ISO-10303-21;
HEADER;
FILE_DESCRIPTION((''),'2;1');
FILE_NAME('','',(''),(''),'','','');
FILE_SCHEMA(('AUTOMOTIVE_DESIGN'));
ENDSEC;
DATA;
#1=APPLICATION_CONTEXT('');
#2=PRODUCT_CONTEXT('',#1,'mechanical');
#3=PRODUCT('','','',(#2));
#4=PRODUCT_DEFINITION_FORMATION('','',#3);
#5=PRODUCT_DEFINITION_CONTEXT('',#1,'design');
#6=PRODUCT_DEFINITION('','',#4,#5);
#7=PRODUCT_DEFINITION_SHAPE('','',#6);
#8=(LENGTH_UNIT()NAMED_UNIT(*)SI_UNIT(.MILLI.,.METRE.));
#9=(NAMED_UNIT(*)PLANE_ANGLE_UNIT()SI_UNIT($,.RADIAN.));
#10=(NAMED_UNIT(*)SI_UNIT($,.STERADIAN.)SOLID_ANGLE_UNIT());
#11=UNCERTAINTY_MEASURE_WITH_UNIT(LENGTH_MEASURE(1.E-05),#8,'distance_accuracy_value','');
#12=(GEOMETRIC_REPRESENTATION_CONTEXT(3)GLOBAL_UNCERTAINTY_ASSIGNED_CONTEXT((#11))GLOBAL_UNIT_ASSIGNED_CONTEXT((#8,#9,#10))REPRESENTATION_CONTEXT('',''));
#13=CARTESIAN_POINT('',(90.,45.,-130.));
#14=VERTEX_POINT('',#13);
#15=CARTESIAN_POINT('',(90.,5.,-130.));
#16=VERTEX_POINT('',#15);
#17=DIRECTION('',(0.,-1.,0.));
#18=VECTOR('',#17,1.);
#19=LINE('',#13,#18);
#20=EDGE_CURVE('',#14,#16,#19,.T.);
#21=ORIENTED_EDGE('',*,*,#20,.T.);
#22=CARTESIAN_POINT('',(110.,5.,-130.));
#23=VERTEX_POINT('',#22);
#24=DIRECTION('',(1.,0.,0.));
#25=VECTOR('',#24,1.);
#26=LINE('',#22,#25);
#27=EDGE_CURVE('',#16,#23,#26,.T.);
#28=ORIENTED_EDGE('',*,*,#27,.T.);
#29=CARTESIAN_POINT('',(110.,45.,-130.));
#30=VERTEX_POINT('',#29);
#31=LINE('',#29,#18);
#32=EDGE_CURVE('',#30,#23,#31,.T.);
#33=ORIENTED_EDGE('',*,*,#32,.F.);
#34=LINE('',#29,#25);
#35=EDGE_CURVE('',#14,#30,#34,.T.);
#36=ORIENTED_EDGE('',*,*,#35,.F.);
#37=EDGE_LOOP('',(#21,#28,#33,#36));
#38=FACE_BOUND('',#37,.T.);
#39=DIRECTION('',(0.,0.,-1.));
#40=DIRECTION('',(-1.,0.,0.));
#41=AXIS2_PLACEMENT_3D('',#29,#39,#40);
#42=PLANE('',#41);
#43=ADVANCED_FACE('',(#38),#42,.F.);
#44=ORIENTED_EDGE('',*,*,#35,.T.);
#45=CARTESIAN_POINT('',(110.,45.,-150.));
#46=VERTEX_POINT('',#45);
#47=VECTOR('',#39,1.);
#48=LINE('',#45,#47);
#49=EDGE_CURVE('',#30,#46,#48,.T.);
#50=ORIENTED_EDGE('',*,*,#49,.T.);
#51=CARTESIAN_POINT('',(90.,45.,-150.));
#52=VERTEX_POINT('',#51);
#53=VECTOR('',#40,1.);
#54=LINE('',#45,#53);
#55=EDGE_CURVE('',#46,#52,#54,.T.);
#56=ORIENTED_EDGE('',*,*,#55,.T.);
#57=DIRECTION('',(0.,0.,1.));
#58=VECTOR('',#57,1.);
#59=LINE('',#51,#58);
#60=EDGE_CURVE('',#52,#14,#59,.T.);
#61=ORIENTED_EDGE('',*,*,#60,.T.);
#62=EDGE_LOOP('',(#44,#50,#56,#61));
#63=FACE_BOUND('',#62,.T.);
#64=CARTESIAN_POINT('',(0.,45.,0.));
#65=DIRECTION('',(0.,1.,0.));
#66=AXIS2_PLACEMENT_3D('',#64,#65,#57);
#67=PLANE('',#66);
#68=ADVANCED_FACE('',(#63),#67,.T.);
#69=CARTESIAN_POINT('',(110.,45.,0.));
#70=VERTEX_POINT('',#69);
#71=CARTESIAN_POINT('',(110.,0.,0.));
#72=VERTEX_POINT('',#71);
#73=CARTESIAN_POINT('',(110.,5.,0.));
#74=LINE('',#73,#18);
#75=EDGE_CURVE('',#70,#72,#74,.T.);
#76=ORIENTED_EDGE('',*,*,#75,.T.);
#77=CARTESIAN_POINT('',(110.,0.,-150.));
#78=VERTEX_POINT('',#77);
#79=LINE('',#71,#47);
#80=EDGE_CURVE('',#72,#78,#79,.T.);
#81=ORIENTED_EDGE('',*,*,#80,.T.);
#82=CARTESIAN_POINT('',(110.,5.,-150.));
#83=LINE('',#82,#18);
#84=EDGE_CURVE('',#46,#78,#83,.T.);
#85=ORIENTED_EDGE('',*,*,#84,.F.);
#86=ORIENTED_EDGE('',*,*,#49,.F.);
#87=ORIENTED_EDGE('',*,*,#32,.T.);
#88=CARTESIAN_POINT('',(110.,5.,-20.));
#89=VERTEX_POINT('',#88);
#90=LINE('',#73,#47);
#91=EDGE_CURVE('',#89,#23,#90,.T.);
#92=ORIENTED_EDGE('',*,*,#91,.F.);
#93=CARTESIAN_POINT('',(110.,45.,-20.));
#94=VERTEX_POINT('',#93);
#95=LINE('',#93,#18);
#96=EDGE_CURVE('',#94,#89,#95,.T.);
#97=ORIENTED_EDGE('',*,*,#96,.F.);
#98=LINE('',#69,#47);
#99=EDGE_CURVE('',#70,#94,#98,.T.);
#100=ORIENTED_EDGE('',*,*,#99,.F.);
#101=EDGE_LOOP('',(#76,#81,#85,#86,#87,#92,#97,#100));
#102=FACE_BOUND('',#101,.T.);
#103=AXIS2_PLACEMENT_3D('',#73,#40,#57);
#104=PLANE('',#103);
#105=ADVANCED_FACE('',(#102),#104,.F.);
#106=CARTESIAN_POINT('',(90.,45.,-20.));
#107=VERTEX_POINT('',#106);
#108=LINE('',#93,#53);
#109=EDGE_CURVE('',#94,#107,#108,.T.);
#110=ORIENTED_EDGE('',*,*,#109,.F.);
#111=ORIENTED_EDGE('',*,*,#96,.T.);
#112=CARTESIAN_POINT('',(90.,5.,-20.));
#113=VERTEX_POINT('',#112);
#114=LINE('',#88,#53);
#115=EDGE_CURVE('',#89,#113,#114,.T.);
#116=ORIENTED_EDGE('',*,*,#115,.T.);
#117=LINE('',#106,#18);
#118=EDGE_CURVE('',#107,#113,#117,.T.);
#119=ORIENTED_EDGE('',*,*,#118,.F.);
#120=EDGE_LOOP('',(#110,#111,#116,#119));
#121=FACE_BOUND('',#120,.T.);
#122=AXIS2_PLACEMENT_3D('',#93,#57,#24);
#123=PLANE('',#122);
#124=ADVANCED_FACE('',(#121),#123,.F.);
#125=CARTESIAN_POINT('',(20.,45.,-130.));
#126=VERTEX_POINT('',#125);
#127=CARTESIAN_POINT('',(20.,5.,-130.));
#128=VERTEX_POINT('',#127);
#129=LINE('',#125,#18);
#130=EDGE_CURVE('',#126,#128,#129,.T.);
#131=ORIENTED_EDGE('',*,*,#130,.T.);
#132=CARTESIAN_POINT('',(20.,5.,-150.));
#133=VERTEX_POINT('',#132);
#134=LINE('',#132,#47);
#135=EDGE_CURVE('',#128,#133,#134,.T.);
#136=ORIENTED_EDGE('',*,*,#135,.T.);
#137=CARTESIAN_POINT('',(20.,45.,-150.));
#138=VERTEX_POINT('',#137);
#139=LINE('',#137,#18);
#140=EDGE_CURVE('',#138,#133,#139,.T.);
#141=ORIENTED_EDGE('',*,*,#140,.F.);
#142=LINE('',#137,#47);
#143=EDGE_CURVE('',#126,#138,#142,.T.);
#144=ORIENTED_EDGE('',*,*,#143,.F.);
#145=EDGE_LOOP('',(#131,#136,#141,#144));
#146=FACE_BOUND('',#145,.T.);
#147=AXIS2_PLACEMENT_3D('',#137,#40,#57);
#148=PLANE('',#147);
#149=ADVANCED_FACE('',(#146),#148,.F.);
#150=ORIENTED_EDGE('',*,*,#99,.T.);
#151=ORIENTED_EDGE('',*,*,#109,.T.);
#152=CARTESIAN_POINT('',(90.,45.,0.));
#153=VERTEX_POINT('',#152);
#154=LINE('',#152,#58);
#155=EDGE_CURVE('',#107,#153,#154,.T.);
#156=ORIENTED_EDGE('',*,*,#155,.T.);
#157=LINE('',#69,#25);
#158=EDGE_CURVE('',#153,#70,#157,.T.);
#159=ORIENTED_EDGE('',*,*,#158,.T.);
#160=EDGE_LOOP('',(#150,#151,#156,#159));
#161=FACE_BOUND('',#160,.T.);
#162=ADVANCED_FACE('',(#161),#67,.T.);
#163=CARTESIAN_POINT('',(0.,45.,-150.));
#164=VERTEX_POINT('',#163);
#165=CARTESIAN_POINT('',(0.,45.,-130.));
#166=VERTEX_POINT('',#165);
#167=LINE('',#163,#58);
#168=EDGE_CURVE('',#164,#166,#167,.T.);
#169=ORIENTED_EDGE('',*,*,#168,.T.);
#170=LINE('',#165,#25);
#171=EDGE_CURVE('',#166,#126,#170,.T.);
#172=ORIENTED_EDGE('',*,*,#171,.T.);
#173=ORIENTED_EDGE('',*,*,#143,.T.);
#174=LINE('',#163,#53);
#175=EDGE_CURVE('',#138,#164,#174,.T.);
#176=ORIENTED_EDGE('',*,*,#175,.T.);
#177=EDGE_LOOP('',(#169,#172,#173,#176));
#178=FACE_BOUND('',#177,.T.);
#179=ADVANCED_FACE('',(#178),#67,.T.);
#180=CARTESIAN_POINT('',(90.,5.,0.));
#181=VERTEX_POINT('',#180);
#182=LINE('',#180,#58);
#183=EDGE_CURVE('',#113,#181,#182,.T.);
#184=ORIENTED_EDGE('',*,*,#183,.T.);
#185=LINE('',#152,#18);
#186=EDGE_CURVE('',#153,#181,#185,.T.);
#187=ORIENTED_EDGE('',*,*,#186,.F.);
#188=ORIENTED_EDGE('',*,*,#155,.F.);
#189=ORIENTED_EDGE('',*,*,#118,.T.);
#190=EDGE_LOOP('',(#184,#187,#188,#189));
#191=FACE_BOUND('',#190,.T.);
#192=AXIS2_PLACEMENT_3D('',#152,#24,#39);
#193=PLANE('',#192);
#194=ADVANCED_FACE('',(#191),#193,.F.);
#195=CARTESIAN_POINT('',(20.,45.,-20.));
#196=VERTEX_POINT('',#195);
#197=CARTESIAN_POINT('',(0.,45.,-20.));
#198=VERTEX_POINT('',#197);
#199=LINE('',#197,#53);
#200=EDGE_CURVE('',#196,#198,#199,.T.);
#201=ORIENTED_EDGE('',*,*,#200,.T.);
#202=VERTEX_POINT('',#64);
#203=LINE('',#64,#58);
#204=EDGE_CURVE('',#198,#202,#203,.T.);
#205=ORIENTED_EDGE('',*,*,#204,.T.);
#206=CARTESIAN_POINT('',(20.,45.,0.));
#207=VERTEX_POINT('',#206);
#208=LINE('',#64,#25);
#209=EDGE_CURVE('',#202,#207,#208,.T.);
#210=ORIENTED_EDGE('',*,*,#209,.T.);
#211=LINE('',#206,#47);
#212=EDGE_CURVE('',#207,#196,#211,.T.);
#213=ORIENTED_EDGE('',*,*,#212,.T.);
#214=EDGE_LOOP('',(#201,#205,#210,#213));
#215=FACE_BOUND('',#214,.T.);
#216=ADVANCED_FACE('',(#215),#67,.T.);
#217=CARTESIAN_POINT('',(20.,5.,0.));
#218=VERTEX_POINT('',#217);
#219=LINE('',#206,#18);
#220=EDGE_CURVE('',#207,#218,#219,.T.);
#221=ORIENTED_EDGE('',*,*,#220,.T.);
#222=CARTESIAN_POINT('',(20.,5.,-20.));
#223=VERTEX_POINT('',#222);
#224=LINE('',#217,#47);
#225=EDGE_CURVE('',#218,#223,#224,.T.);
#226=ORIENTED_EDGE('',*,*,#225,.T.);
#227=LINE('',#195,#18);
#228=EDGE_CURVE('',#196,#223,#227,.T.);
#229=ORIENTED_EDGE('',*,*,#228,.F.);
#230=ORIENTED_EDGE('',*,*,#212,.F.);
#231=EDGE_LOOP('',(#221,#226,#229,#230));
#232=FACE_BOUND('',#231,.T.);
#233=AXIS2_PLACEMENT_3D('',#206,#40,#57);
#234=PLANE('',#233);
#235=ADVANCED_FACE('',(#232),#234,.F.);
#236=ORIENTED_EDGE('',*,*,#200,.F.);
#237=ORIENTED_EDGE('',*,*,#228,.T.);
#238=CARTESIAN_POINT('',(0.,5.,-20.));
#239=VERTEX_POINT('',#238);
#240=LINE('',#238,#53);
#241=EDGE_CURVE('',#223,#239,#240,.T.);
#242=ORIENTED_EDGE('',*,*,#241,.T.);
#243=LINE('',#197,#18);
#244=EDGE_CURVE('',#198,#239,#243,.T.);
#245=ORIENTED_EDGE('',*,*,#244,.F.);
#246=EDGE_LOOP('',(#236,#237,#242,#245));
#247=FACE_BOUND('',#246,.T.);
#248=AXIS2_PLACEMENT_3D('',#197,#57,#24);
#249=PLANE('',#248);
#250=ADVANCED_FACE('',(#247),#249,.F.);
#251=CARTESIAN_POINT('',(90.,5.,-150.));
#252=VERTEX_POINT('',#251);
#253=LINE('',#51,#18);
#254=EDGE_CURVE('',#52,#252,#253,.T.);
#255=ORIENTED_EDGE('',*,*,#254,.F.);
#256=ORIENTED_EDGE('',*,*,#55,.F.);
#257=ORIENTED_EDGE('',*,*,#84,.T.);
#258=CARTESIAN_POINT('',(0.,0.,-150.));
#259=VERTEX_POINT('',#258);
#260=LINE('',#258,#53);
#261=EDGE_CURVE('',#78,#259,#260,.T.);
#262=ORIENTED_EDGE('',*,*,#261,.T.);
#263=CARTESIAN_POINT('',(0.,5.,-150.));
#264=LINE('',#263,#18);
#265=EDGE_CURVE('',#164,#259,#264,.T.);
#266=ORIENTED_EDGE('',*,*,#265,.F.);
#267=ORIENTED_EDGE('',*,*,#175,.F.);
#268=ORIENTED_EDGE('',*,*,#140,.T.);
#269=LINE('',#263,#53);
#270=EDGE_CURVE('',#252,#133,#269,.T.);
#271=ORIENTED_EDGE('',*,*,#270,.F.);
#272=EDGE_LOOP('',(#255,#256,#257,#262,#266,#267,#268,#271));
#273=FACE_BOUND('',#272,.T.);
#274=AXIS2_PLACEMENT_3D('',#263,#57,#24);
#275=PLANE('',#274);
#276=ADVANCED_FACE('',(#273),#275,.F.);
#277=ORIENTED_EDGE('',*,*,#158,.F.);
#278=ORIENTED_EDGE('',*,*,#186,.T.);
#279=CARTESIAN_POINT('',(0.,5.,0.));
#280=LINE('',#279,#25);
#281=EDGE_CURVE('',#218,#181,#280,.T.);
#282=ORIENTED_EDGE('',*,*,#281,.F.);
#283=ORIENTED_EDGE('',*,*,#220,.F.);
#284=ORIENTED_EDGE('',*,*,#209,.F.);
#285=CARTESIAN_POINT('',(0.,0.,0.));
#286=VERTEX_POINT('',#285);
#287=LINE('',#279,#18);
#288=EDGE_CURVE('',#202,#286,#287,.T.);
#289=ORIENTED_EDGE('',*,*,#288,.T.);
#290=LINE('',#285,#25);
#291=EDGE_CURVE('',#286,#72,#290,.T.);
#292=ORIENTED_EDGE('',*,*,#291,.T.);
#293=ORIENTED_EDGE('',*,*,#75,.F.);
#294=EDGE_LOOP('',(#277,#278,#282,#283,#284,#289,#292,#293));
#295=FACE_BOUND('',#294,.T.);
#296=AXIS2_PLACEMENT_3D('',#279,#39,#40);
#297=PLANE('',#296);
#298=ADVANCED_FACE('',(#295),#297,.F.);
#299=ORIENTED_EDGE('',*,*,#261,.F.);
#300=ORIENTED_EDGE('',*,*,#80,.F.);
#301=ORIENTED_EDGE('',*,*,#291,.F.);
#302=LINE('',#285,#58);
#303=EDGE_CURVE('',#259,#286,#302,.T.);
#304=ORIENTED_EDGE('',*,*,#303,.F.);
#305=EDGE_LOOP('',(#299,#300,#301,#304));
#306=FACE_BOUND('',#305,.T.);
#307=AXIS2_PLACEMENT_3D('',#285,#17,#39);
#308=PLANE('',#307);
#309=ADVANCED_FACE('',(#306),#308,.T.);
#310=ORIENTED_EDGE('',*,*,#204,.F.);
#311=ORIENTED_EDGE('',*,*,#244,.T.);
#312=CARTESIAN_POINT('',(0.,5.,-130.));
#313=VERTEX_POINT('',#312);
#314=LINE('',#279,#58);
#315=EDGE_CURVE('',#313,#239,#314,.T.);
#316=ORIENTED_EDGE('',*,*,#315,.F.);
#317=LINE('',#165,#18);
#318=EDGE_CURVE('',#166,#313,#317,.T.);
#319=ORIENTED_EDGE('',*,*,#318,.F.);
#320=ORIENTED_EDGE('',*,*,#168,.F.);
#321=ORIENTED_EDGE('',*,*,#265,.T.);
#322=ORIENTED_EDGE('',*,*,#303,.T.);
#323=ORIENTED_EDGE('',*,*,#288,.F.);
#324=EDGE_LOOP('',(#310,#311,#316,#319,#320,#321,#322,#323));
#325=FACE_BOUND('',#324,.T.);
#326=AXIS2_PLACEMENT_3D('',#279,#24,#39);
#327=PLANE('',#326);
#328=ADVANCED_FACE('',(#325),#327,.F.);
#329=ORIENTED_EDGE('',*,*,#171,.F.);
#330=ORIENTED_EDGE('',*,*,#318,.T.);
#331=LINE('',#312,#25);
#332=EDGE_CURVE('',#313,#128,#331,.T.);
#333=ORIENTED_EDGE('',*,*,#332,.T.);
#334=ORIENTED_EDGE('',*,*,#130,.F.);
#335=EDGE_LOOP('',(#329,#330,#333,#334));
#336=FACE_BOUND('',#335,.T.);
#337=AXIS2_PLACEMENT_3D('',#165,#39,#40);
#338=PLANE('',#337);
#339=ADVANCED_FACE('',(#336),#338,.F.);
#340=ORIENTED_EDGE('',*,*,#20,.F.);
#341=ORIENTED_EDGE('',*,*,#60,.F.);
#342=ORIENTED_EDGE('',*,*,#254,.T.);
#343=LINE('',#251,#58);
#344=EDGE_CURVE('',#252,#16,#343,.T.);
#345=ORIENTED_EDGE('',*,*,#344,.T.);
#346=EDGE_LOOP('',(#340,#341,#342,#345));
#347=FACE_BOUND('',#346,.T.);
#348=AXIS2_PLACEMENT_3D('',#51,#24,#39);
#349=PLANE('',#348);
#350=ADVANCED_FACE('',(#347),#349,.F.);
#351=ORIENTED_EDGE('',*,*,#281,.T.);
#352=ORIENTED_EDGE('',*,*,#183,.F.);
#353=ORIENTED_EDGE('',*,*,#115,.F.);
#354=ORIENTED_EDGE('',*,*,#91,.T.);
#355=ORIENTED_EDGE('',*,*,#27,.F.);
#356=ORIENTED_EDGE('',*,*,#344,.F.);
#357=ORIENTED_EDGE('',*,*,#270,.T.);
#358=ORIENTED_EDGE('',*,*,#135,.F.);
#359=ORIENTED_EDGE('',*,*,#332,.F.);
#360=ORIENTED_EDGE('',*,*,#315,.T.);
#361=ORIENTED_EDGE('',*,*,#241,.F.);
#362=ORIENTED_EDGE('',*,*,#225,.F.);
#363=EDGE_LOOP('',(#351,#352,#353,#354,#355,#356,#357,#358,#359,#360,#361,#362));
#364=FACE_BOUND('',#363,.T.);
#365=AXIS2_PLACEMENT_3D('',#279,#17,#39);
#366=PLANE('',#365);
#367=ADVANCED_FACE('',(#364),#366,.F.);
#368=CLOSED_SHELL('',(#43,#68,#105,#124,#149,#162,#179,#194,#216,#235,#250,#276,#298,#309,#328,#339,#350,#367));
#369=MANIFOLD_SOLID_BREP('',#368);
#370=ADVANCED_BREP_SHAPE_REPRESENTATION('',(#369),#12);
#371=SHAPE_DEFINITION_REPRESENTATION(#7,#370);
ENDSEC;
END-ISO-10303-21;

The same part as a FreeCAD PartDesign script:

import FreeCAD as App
import Part
import Sketcher
Q = App.Units.Quantity


def add_polygon(sketch, points):
    """Adds a closed chain of lines whose ends are joined by coincident constraints."""
    first, n = sketch.GeometryCount, len(points)
    for a, b in zip(points, points[1:] + points[:1]):
        sketch.addGeometry(Part.LineSegment(App.Vector(*a, 0), App.Vector(*b, 0)), False)
    for i in range(n):
        sketch.addConstraint(Sketcher.Constraint("Coincident", first + i, 2, first + (i + 1) % n, 1))

doc = App.newDocument("Part")
params = doc.addObject("Spreadsheet::Sheet", "Params")
for row, (alias, value) in enumerate([
    ("sketch1_width", "110 mm"),
    ("sketch1_height", "150 mm"),
    ("pad1_length", "5 mm"),
    ("sketch2_width", "20 mm"),
    ("pad2_length", "40 mm"),
], start=1):
    params.set(f"A{row}", alias)
    params.set(f"B{row}", "=" + value)
    params.setAlias(f"B{row}", alias)

body = doc.addObject("PartDesign::Body", "Body")

sketch1 = doc.addObject("Sketcher::SketchObject", "Sketch")
body.addObject(sketch1)
sketch1.AttachmentSupport = (doc.XZ_Plane, [""])
sketch1.MapMode = "FlatFace"
add_polygon(sketch1, [(0, -150), (0, 0), (110, 0), (110, -150)])
sketch1.addConstraint([
    Sketcher.Constraint("Vertical", 0),
    Sketcher.Constraint("Horizontal", 1),
    Sketcher.Constraint("Vertical", 2),
    Sketcher.Constraint("Horizontal", 3),
    Sketcher.Constraint("Coincident", 0, 2, -1, 1),
    Sketcher.Constraint("DistanceX", 1, 1, 1, 2, Q("110 mm")),
    Sketcher.Constraint("DistanceY", 0, 1, 0, 2, Q("150 mm")),
])
sketch1.setExpression("Constraints[9]", "Params.sketch1_width")
sketch1.setExpression("Constraints[10]", "Params.sketch1_height")
pad1 = doc.addObject("PartDesign::Pad", "Pad")
body.addObject(pad1)
pad1.Profile = sketch1
pad1.setExpression("Length", "Params.pad1_length")
pad1.Reversed = True

sketch2 = doc.addObject("Sketcher::SketchObject", "Sketch001")
body.addObject(sketch2)
sketch2.AttachmentSupport = (doc.XZ_Plane, [""])
sketch2.MapMode = "FlatFace"
sketch2.AttachmentOffset = App.Placement(App.Vector(0, 0, -5), App.Rotation())
add_polygon(sketch2, [(0, -150), (0, -130), (20, -130), (20, -150)])
add_polygon(sketch2, [(0, -20), (0, 0), (20, 0), (20, -20)])
add_polygon(sketch2, [(90, -20), (90, 0), (110, 0), (110, -20)])
add_polygon(sketch2, [(90, -150), (90, -130), (110, -130), (110, -150)])
sketch2.addConstraint([
    Sketcher.Constraint("Vertical", 0),
    Sketcher.Constraint("Horizontal", 1),
    Sketcher.Constraint("Vertical", 2),
    Sketcher.Constraint("Horizontal", 3),
    Sketcher.Constraint("Vertical", 4),
    Sketcher.Constraint("Horizontal", 5),
    Sketcher.Constraint("Vertical", 6),
    Sketcher.Constraint("Horizontal", 7),
    Sketcher.Constraint("Vertical", 8),
    Sketcher.Constraint("Horizontal", 9),
    Sketcher.Constraint("Vertical", 10),
    Sketcher.Constraint("Horizontal", 11),
    Sketcher.Constraint("Vertical", 12),
    Sketcher.Constraint("Horizontal", 13),
    Sketcher.Constraint("Vertical", 14),
    Sketcher.Constraint("Horizontal", 15),
    Sketcher.Constraint("Coincident", 4, 2, -1, 1),
    Sketcher.Constraint("PointOnObject", 0, 2, -2),
    Sketcher.Constraint("PointOnObject", 8, 2, -1),
    Sketcher.Constraint("Horizontal", 7, 2, 10, 2),
    Sketcher.Constraint("Horizontal", 1, 2, 12, 2),
    Sketcher.Constraint("Horizontal", 3, 2, 14, 2),
    Sketcher.Constraint("Vertical", 2, 2, 5, 2),
    Sketcher.Constraint("Vertical", 11, 2, 12, 2),
    Sketcher.Constraint("Vertical", 10, 2, 13, 2),
    Sketcher.Constraint("Equal", 7, 9),
    Sketcher.Constraint("Equal", 15, 0),
    Sketcher.Constraint("Equal", 2, 4),
    Sketcher.Constraint("DistanceX", 1, 1, 1, 2, Q("20 mm")),
    Sketcher.Constraint("DistanceY", 0, 2, -1, 1, Q("130 mm")),
    Sketcher.Constraint("DistanceX", -1, 1, 8, 2, Q("90 mm")),
])
sketch2.setExpression("Constraints[44]", "Params.sketch2_width")
pad2 = doc.addObject("PartDesign::Pad", "Pad001")
body.addObject(pad2)
pad2.Profile = sketch2
pad2.setExpression("Length", "Params.pad2_length")
pad2.Reversed = True

doc.recompute()
